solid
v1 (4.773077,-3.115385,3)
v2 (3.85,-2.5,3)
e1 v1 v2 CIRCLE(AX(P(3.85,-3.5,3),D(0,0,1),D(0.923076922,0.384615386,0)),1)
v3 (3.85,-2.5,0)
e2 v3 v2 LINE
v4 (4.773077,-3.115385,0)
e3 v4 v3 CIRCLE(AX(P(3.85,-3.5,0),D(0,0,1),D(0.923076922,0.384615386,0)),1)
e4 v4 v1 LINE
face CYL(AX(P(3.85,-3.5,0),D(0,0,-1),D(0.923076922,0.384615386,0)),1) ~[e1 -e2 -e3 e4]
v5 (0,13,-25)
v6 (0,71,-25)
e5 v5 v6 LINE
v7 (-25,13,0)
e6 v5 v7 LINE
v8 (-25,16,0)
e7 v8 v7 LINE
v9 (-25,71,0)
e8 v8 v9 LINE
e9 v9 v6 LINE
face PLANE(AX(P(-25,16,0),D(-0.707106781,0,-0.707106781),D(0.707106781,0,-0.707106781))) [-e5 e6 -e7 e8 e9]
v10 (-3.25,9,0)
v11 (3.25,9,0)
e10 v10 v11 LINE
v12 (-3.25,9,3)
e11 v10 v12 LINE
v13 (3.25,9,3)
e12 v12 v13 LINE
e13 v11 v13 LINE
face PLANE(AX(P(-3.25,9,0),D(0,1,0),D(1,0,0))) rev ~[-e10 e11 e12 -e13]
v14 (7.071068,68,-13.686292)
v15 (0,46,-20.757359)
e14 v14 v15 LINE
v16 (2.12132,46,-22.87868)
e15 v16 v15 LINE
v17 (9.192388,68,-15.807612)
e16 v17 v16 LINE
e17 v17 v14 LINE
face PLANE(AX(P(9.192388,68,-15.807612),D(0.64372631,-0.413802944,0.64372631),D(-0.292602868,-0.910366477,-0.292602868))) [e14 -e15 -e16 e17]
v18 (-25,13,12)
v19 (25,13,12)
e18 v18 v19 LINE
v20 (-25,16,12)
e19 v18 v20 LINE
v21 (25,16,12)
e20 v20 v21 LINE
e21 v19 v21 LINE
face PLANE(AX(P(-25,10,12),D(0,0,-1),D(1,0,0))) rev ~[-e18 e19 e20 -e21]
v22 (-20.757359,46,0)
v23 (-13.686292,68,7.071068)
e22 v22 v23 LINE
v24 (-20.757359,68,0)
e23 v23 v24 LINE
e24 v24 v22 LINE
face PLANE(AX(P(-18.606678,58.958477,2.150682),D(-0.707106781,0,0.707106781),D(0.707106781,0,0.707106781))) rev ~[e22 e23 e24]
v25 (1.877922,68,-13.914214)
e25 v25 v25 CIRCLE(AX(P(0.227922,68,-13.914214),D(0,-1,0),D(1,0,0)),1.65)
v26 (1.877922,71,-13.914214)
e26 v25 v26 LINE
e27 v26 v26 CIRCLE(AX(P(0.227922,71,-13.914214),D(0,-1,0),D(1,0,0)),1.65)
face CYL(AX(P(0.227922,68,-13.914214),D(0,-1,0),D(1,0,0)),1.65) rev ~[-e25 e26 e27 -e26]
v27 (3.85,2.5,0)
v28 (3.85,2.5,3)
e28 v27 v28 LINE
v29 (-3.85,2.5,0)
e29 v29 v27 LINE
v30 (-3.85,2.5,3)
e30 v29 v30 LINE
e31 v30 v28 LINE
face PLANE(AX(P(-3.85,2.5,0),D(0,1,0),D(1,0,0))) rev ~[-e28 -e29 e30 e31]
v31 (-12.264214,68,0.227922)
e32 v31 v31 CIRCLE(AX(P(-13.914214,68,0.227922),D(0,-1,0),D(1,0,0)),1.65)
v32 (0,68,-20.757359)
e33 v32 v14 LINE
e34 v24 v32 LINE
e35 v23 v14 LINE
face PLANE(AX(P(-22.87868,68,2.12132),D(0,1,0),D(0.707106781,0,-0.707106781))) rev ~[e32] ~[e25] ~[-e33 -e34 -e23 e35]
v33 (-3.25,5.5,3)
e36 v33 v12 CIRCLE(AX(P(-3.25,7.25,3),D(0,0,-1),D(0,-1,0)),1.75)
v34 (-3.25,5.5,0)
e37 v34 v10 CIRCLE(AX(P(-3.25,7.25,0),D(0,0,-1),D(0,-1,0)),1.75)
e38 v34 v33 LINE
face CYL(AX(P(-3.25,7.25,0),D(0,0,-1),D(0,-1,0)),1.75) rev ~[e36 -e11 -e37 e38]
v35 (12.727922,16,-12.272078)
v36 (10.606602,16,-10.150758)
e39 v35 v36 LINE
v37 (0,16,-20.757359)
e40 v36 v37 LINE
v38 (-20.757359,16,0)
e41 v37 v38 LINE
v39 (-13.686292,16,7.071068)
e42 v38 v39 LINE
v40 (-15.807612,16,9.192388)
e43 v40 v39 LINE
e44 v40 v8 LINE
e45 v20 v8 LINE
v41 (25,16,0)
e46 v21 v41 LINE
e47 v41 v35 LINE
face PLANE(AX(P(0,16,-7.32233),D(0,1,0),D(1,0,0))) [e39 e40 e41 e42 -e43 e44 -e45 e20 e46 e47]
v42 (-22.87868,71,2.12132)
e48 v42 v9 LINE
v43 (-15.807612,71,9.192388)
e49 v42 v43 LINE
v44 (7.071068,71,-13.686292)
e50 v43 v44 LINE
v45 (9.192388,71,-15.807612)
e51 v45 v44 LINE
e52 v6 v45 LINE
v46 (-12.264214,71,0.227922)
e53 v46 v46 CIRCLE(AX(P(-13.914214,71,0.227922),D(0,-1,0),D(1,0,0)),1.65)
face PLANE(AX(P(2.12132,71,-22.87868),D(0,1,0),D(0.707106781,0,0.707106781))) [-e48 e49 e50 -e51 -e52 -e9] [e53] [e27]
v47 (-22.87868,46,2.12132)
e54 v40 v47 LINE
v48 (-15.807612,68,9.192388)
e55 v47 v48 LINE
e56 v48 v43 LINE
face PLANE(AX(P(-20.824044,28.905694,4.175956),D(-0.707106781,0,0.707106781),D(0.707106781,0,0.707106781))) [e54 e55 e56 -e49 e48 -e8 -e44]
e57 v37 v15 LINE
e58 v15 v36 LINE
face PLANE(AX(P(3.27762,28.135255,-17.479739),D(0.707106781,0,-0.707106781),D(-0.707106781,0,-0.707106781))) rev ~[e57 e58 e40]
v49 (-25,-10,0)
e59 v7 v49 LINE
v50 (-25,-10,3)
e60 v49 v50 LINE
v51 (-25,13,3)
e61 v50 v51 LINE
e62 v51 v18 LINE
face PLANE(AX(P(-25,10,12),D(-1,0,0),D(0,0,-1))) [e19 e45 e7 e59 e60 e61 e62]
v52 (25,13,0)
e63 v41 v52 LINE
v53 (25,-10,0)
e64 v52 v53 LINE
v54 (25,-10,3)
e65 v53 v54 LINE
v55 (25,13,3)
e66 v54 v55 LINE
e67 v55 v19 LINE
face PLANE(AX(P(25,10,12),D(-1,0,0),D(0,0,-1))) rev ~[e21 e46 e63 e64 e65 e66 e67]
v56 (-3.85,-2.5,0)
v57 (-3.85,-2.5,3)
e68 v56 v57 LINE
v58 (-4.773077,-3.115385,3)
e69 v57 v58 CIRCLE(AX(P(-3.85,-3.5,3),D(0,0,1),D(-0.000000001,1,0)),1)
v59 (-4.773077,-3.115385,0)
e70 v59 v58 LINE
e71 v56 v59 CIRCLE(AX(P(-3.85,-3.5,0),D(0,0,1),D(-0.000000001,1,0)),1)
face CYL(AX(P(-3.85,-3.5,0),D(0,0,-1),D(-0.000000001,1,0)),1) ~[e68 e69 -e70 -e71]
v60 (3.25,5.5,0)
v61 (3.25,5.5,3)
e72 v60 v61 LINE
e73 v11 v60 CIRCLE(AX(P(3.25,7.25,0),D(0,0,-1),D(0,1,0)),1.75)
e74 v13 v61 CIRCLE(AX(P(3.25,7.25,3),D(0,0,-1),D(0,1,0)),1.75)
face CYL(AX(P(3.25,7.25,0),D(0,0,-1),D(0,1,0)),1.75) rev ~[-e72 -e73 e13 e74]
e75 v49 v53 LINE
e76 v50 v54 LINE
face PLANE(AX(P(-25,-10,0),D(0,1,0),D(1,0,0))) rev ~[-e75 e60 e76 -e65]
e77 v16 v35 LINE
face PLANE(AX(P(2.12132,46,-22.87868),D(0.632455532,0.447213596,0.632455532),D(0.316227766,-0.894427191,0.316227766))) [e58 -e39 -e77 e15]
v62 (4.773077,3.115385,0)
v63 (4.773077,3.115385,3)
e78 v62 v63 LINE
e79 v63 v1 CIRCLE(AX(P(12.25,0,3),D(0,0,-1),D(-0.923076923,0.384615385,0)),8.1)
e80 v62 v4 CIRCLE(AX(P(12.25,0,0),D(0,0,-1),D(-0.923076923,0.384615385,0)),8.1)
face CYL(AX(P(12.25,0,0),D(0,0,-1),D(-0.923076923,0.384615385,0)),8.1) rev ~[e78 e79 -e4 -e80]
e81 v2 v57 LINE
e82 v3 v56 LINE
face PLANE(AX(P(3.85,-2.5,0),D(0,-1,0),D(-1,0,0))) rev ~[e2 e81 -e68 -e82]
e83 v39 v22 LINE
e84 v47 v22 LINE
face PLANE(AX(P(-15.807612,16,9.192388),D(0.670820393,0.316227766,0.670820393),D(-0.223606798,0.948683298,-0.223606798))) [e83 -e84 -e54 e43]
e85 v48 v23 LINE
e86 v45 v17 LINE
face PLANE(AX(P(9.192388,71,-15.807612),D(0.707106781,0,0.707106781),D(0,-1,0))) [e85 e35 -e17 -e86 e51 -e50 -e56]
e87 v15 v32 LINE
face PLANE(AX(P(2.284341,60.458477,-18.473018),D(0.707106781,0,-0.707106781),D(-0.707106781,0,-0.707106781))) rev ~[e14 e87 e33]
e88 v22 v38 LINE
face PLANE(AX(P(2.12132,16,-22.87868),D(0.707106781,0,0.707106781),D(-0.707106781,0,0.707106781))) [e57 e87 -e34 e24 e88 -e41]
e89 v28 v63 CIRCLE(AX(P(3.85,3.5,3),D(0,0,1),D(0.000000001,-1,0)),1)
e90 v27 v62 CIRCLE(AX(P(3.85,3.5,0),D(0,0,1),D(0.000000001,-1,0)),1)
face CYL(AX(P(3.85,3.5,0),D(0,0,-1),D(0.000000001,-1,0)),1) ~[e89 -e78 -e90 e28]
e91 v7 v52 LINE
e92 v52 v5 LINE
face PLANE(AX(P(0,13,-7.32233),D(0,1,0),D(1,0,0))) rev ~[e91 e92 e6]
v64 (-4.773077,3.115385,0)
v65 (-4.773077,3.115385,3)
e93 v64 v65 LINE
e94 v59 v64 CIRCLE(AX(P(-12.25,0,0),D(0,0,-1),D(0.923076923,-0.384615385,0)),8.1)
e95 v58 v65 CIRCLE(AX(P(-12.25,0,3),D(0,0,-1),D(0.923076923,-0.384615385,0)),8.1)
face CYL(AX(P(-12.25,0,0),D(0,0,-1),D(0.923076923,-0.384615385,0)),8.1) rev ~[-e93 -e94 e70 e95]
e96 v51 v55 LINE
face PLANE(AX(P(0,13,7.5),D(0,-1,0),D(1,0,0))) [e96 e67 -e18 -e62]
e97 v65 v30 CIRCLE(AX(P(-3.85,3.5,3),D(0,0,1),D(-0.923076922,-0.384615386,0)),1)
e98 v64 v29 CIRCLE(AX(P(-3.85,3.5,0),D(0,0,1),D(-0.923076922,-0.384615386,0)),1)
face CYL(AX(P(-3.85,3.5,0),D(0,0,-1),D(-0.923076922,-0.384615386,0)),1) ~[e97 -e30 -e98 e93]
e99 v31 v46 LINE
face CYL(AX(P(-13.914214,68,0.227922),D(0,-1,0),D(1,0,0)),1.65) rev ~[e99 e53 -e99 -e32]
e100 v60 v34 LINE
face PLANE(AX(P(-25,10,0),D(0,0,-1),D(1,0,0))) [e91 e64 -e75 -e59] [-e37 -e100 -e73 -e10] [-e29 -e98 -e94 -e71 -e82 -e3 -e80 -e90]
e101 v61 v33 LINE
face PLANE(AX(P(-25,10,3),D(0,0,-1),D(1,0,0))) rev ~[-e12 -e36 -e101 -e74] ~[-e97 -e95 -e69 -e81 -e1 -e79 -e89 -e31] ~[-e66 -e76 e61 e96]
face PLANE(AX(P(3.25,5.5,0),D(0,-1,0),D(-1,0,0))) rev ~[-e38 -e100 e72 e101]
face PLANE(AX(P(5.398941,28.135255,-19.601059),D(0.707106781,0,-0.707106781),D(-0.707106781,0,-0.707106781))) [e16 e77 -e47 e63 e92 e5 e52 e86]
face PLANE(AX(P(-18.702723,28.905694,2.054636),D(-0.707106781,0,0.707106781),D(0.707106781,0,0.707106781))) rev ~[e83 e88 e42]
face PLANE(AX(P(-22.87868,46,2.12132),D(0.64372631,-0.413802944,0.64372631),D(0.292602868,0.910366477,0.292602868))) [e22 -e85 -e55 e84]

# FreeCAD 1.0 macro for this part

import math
import FreeCAD as App
import Part
import Sketcher
from FreeCAD import Vector
Q = App.Units.Quantity

doc = App.newDocument("Part")
body = doc.addObject("PartDesign::Body", "Body")

sketch1 = doc.addObject("Sketcher::SketchObject", "Sketch")
body.addObject(sketch1)
sketch1.AttachmentSupport = (doc.XY_Plane, [""])
sketch1.MapMode = "FlatFace"
sketch1.addGeometry([
    Part.LineSegment(Vector(-25, 10, 0), Vector(-25, -10, 0)),
    Part.LineSegment(Vector(-25, -10, 0), Vector(25, -10, 0)),
    Part.LineSegment(Vector(25, -10, 0), Vector(25, 10, 0)),
    Part.LineSegment(Vector(25, 10, 0), Vector(-25, 10, 0)),
    Part.ArcOfCircle(Part.Circle(Vector(-3.85, 3.5, 0), Vector(0, 0, 1), 1), math.radians(-157.380135), math.radians(-90)),
    Part.LineSegment(Vector(-3.85, 2.5, 0), Vector(3.85, 2.5, 0)),
    Part.ArcOfCircle(Part.Circle(Vector(3.85, 3.5, 0), Vector(0, 0, 1), 1), math.radians(-90), math.radians(-22.619865)),
    Part.ArcOfCircle(Part.Circle(Vector(12.25, 0, 0), Vector(0, 0, 1), 8.1), math.radians(-157.380135), math.radians(157.380135)),
    Part.ArcOfCircle(Part.Circle(Vector(3.85, -3.5, 0), Vector(0, 0, 1), 1), math.radians(22.619865), math.radians(90)),
    Part.LineSegment(Vector(3.85, -2.5, 0), Vector(-3.85, -2.5, 0)),
    Part.ArcOfCircle(Part.Circle(Vector(-3.85, -3.5, 0), Vector(0, 0, 1), 1), math.radians(90), math.radians(157.380135)),
    Part.ArcOfCircle(Part.Circle(Vector(-12.25, 0, 0), Vector(0, 0, 1), 8.1), math.radians(22.619865), math.radians(337.380135)),
    Part.ArcOfCircle(Part.Circle(Vector(3.25, 7.25, 0), Vector(0, 0, 1), 1.75), math.radians(-90), math.radians(90)),
    Part.LineSegment(Vector(3.25, 5.5, 0), Vector(-3.25, 5.5, 0)),
    Part.ArcOfCircle(Part.Circle(Vector(-3.25, 7.25, 0), Vector(0, 0, 1), 1.75), math.radians(90), math.radians(270)),
    Part.LineSegment(Vector(-3.25, 9, 0), Vector(3.25, 9, 0)),
], False)
sketch1.addConstraint([
    Sketcher.Constraint("Coincident", 0, 2, 1, 1),
    Sketcher.Constraint("Coincident", 1, 2, 2, 1),
    Sketcher.Constraint("Coincident", 2, 2, 3, 1),
    Sketcher.Constraint("Coincident", 3, 2, 0, 1),
    Sketcher.Constraint("Tangent", 4, 2, 5, 1),
    Sketcher.Constraint("Tangent", 5, 2, 6, 1),
    Sketcher.Constraint("Tangent", 6, 2, 7, 2),
    Sketcher.Constraint("Tangent", 7, 1, 8, 1),
    Sketcher.Constraint("Tangent", 8, 2, 9, 1),
    Sketcher.Constraint("Tangent", 9, 2, 10, 1),
    Sketcher.Constraint("Tangent", 10, 2, 11, 2),
    Sketcher.Constraint("Tangent", 11, 1, 4, 1),
    Sketcher.Constraint("Tangent", 12, 1, 13, 1),
    Sketcher.Constraint("Tangent", 13, 2, 14, 2),
    Sketcher.Constraint("Tangent", 14, 1, 15, 1),
    Sketcher.Constraint("Tangent", 15, 2, 12, 2),
    Sketcher.Constraint("Vertical", 0),
    Sketcher.Constraint("Horizontal", 1),
    Sketcher.Constraint("Vertical", 2),
    Sketcher.Constraint("Horizontal", 3),
    Sketcher.Constraint("Horizontal", 5),
    Sketcher.Constraint("Horizontal", 9),
    Sketcher.Constraint("Horizontal", 13),
    Sketcher.Constraint("Horizontal", 15),
    Sketcher.Constraint("Equal", 4, 6),
    Sketcher.Constraint("Equal", 6, 8),
    Sketcher.Constraint("Equal", 8, 10),
    Sketcher.Constraint("Equal", 7, 11),
    Sketcher.Constraint("Symmetric", 4, 3, 8, 3, -1, 1),
    Sketcher.Constraint("Symmetric", 0, 2, 2, 2, -1, 1),
    Sketcher.Constraint("Symmetric", 7, 3, 11, 3, -2),
    Sketcher.Constraint("Radius", 4, Q("1 mm")),
    Sketcher.Constraint("Radius", 7, Q("8.1 mm")),
    Sketcher.Constraint("DistanceX", 1, 1, 1, 2, Q("50 mm")),
    Sketcher.Constraint("DistanceY", 0, 2, 0, 1, Q("20 mm")),
    Sketcher.Constraint("Radius", 12, Q("1.75 mm")),
    Sketcher.Constraint("DistanceX", 5, 1, 5, 2, Q("7.7 mm")),
    Sketcher.Constraint("DistanceX", 13, 2, 13, 1, Q("6.5 mm")),
    Sketcher.Constraint("DistanceY", -1, 1, 14, 1, Q("9 mm")),
    Sketcher.Constraint("DistanceY", 8, 3, 6, 3, Q("7 mm")),
    Sketcher.Constraint("DistanceX", 12, 3, 7, 3, Q("9 mm")),
])
pad1 = doc.addObject("PartDesign::Pad", "Pad")
body.addObject(pad1)
pad1.Profile = sketch1
pad1.Length = 3

sketch2 = doc.addObject("Sketcher::SketchObject", "Sketch001")
body.addObject(sketch2)
sketch2.AttachmentSupport = (doc.XZ_Plane, [""])
sketch2.MapMode = "FlatFace"
sketch2.AttachmentOffset = App.Placement(Vector(0, 0, -10), App.Rotation())
sketch2.addGeometry([
    Part.LineSegment(Vector(-25, 0, 0), Vector(-25, 12, 0)),
    Part.LineSegment(Vector(-25, 12, 0), Vector(25, 12, 0)),
    Part.LineSegment(Vector(25, 12, 0), Vector(25, 0, 0)),
    Part.LineSegment(Vector(25, 0, 0), Vector(-25, 0, 0)),
], False)
sketch2.addConstraint([
    Sketcher.Constraint("Coincident", 0, 2, 1, 1),
    Sketcher.Constraint("Coincident", 1, 2, 2, 1),
    Sketcher.Constraint("Coincident", 2, 2, 3, 1),
    Sketcher.Constraint("Coincident", 3, 2, 0, 1),
    Sketcher.Constraint("Vertical", 0),
    Sketcher.Constraint("Horizontal", 1),
    Sketcher.Constraint("Vertical", 2),
    Sketcher.Constraint("Horizontal", 3),
    Sketcher.Constraint("Symmetric", 2, 2, 3, 2, -1, 1),
    Sketcher.Constraint("DistanceX", 1, 1, 1, 2, Q("50 mm")),
    Sketcher.Constraint("DistanceY", 0, 1, 0, 2, Q("12 mm")),
])
pad2 = doc.addObject("PartDesign::Pad", "Pad001")
body.addObject(pad2)
pad2.Profile = sketch2
pad2.Length = 6
pad2.Reversed = True

sketch3 = doc.addObject("Sketcher::SketchObject", "Sketch002")
body.addObject(sketch3)
sketch3.AttachmentSupport = (doc.XZ_Plane, [""])
sketch3.MapMode = "FlatFace"
sketch3.AttachmentOffset = App.Placement(Vector(0, 0, -10), App.Rotation())
sketch3.addGeometry([
    Part.LineSegment(Vector(-25, 12, 0), Vector(-25, 3, 0)),
    Part.LineSegment(Vector(-25, 3, 0), Vector(25, 3, 0)),
    Part.LineSegment(Vector(25, 3, 0), Vector(25, 12, 0)),
    Part.LineSegment(Vector(25, 12, 0), Vector(-25, 12, 0)),
], False)
sketch3.addConstraint([
    Sketcher.Constraint("Coincident", 0, 2, 1, 1),
    Sketcher.Constraint("Coincident", 1, 2, 2, 1),
    Sketcher.Constraint("Coincident", 2, 2, 3, 1),
    Sketcher.Constraint("Coincident", 3, 2, 0, 1),
    Sketcher.Constraint("Vertical", 0),
    Sketcher.Constraint("Horizontal", 1),
    Sketcher.Constraint("Vertical", 2),
    Sketcher.Constraint("Horizontal", 3),
    Sketcher.Constraint("DistanceX", 1, 1, 1, 2, Q("50 mm")),
    Sketcher.Constraint("DistanceY", 0, 2, 0, 1, Q("9 mm")),
    Sketcher.Constraint("DistanceX", 0, 2, -1, 1, Q("25 mm")),
    Sketcher.Constraint("DistanceY", -1, 1, 0, 2, Q("3 mm")),
])
pocket1 = doc.addObject("PartDesign::Pocket", "Pocket")
body.addObject(pocket1)
pocket1.Profile = sketch3
pocket1.Length = 3

sketch4 = doc.addObject("Sketcher::SketchObject", "Sketch003")
body.addObject(sketch4)
sketch4.AttachmentSupport = (doc.XZ_Plane, [""])
sketch4.MapMode = "FlatFace"
sketch4.AttachmentOffset = App.Placement(Vector(0, 0, -16), App.Rotation())
sketch4.addGeometry([
    Part.LineSegment(Vector(25, 0, 0), Vector(0, -25, 0)),
    Part.LineSegment(Vector(0, -25, 0), Vector(-25, 0, 0)),
    Part.LineSegment(Vector(-25, 0, 0), Vector(25, 0, 0)),
], False)
sketch4.addConstraint([
    Sketcher.Constraint("Coincident", 0, 2, 1, 1),
    Sketcher.Constraint("Coincident", 1, 2, 2, 1),
    Sketcher.Constraint("Coincident", 2, 2, 0, 1),
    Sketcher.Constraint("Horizontal", 2),
    Sketcher.Constraint("Symmetric", 1, 2, 2, 2, -1, 1),
    Sketcher.Constraint("PointOnObject", 0, 2, -2),
    Sketcher.Constraint("Perpendicular", 0, 1),
    Sketcher.Constraint("DistanceX", 2, 1, 2, 2, Q("50 mm")),
])
pad3 = doc.addObject("PartDesign::Pad", "Pad002")
body.addObject(pad3)
pad3.Profile = sketch4
pad3.Length = 3

sketch5 = doc.addObject("Sketcher::SketchObject", "Sketch004")
body.addObject(sketch5)
sketch5.AttachmentSupport = (doc.XZ_Plane, [""])
sketch5.MapMode = "FlatFace"
sketch5.AttachmentOffset = App.Placement(Vector(0, 0, -16), App.Rotation())
sketch5.addGeometry([
    Part.LineSegment(Vector(2.12132, -22.87868, 0), Vector(0, -25, 0)),
    Part.LineSegment(Vector(0, -25, 0), Vector(-25, 0, 0)),
    Part.LineSegment(Vector(-25, 0, 0), Vector(-22.87868, 2.12132, 0)),
    Part.LineSegment(Vector(-22.87868, 2.12132, 0), Vector(2.12132, -22.87868, 0)),
], False)
sketch5.addConstraint([
    Sketcher.Constraint("Coincident", 0, 2, 1, 1),
    Sketcher.Constraint("Coincident", 1, 2, 2, 1),
    Sketcher.Constraint("Coincident", 2, 2, 3, 1),
    Sketcher.Constraint("Coincident", 3, 2, 0, 1),
    Sketcher.Constraint("PointOnObject", 0, 2, -2),
    Sketcher.Constraint("PointOnObject", 1, 2, -1),
    Sketcher.Constraint("Perpendicular", 0, 1),
    Sketcher.Constraint("Perpendicular", 1, 2),
    Sketcher.Constraint("Perpendicular", 2, 3),
    Sketcher.Constraint("Angle", 0, Q("-135 deg")),
    Sketcher.Constraint("Distance", 0, Q("3 mm")),
    Sketcher.Constraint("DistanceY", 0, 2, -1, 1, Q("25 mm")),
])
pad4 = doc.addObject("PartDesign::Pad", "Pad003")
body.addObject(pad4)
pad4.Profile = sketch5
pad4.Length = 55
pad4.Reversed = True

sketch6 = doc.addObject("Sketcher::SketchObject", "Sketch005")
body.addObject(sketch6)
sketch6.Placement = App.Placement(Vector(-10.37868, 0, -10.37868), App.Rotation(Vector(0.707106781, 0, -0.707106781), Vector(0, 0.999999999, 0), Vector(0.707106781, 0, 0.707106781), "ZXY"))
sketch6.addGeometry([
    Part.LineSegment(Vector(-17.67767, 71, 0), Vector(-17.67767, 68, 0)),
    Part.LineSegment(Vector(-17.67767, 68, 0), Vector(14.67767, 68, 0)),
    Part.LineSegment(Vector(14.67767, 68, 0), Vector(14.67767, 71, 0)),
    Part.LineSegment(Vector(14.67767, 71, 0), Vector(-17.67767, 71, 0)),
], False)
sketch6.addConstraint([
    Sketcher.Constraint("Coincident", 0, 2, 1, 1),
    Sketcher.Constraint("Coincident", 1, 2, 2, 1),
    Sketcher.Constraint("Coincident", 2, 2, 3, 1),
    Sketcher.Constraint("Coincident", 3, 2, 0, 1),
    Sketcher.Constraint("Vertical", 0),
    Sketcher.Constraint("Horizontal", 1),
    Sketcher.Constraint("Vertical", 2),
    Sketcher.Constraint("Horizontal", 3),
    Sketcher.Constraint("DistanceY", 0, 2, 0, 1, Q("3 mm")),
    Sketcher.Constraint("DistanceY", -1, 1, 0, 2, Q("68 mm")),
    Sketcher.Constraint("DistanceX", 1, 1, 1, 2, Q("32.355339 mm")),
    Sketcher.Constraint("DistanceX", 0, 2, -1, 1, Q("17.67767 mm")),
])
pad5 = doc.addObject("PartDesign::Pad", "Pad004")
body.addObject(pad5)
pad5.Profile = sketch6
pad5.Length = 10

sketch7 = doc.addObject("Sketcher::SketchObject", "Sketch006")
body.addObject(sketch7)
sketch7.Placement = App.Placement(Vector(12.5, 0, -12.5), App.Rotation(Vector(-0.707106781, 0, -0.707106781), Vector(0, 0.999999999, 0), Vector(0.707106781, 0, -0.707106781), "ZXY"))
sketch7.addGeometry([
    Part.LineSegment(Vector(14.67767, 16, 0), Vector(14.67767, 46, 0)),
    Part.LineSegment(Vector(14.67767, 46, 0), Vector(-0.32233, 16, 0)),
    Part.LineSegment(Vector(-0.32233, 16, 0), Vector(14.67767, 16, 0)),
    Part.LineSegment(Vector(14.67767, 46, 0), Vector(14.67767, 71, 0)),
    Part.LineSegment(Vector(14.67767, 71, 0), Vector(4.67767, 71, 0)),
    Part.LineSegment(Vector(4.67767, 71, 0), Vector(4.67767, 68, 0)),
    Part.LineSegment(Vector(4.67767, 68, 0), Vector(14.67767, 46, 0)),
], False)
sketch7.addConstraint([
    Sketcher.Constraint("Coincident", 0, 2, 1, 1),
    Sketcher.Constraint("Coincident", 1, 2, 2, 1),
    Sketcher.Constraint("Coincident", 2, 2, 0, 1),
    Sketcher.Constraint("Coincident", 3, 2, 4, 1),
    Sketcher.Constraint("Coincident", 4, 2, 5, 1),
    Sketcher.Constraint("Coincident", 5, 2, 6, 1),
    Sketcher.Constraint("Coincident", 6, 2, 3, 1),
    Sketcher.Constraint("Vertical", 0),
    Sketcher.Constraint("Horizontal", 2),
    Sketcher.Constraint("Vertical", 3),
    Sketcher.Constraint("Horizontal", 4),
    Sketcher.Constraint("Vertical", 5),
    Sketcher.Constraint("Coincident", 6, 2, 0, 2),
    Sketcher.Constraint("DistanceX", 2, 1, 2, 2, Q("15 mm")),
    Sketcher.Constraint("DistanceX", 4, 2, 4, 1, Q("10 mm")),
    Sketcher.Constraint("DistanceY", 0, 1, 0, 2, Q("30 mm")),
    Sketcher.Constraint("DistanceY", 3, 1, 3, 2, Q("25 mm")),
    Sketcher.Constraint("DistanceY", 5, 2, 5, 1, Q("3 mm")),
    Sketcher.Constraint("DistanceY", -1, 1, 0, 2, Q("46 mm")),
    Sketcher.Constraint("DistanceX", -1, 1, 0, 2, Q("14.67767 mm")),
])
pad6 = doc.addObject("PartDesign::Pad", "Pad005")
body.addObject(pad6)
pad6.Profile = sketch7
pad6.Length = 3
pad6.Reversed = True

sketch8 = doc.addObject("Sketcher::SketchObject", "Sketch007")
body.addObject(sketch8)
sketch8.Placement = App.Placement(Vector(-12.5, 0, 12.5), App.Rotation(Vector(0.707106781, 0, 0.707106781), Vector(0, 0.999999999, 0), Vector(-0.707106781, 0, 0.707106781), "ZXY"))
sketch8.addGeometry([
    Part.LineSegment(Vector(-14.67767, 46, 0), Vector(-14.67767, 16, 0)),
    Part.LineSegment(Vector(-14.67767, 16, 0), Vector(-4.67767, 16, 0)),
    Part.LineSegment(Vector(-4.67767, 16, 0), Vector(-14.67767, 46, 0)),
    Part.LineSegment(Vector(-14.67767, 68, 0), Vector(-14.67767, 46, 0)),
    Part.LineSegment(Vector(-14.67767, 46, 0), Vector(-4.67767, 68, 0)),
    Part.LineSegment(Vector(-4.67767, 68, 0), Vector(-14.67767, 68, 0)),
], False)
sketch8.addConstraint([
    Sketcher.Constraint("Coincident", 0, 2, 1, 1),
    Sketcher.Constraint("Coincident", 1, 2, 2, 1),
    Sketcher.Constraint("Coincident", 2, 2, 0, 1),
    Sketcher.Constraint("Coincident", 3, 2, 4, 1),
    Sketcher.Constraint("Coincident", 4, 2, 5, 1),
    Sketcher.Constraint("Coincident", 5, 2, 3, 1),
    Sketcher.Constraint("Vertical", 0),
    Sketcher.Constraint("Horizontal", 1),
    Sketcher.Constraint("Vertical", 3),
    Sketcher.Constraint("Horizontal", 5),
    Sketcher.Constraint("Coincident", 3, 2, 2, 2),
    Sketcher.Constraint("Vertical", 1, 2, 4, 2),
    Sketcher.Constraint("DistanceX", 1, 1, 1, 2, Q("10 mm")),
    Sketcher.Constraint("DistanceY", 0, 2, 0, 1, Q("30 mm")),
    Sketcher.Constraint("DistanceY", 3, 2, 3, 1, Q("22 mm")),
    Sketcher.Constraint("DistanceY", -1, 1, 0, 2, Q("16 mm")),
    Sketcher.Constraint("DistanceX", 0, 2, -1, 1, Q("14.67767 mm")),
])
pad7 = doc.addObject("PartDesign::Pad", "Pad006")
body.addObject(pad7)
pad7.Profile = sketch8
pad7.Length = 3
pad7.Reversed = True

sketch9 = doc.addObject("Sketcher::SketchObject", "Sketch008")
body.addObject(sketch9)
sketch9.AttachmentSupport = (doc.XZ_Plane, [""])
sketch9.MapMode = "FlatFace"
sketch9.AttachmentOffset = App.Placement(Vector(0, 0, -68), App.Rotation())
sketch9.addGeometry([
    Part.Circle(Vector(0.227922, -13.914214, 0), Vector(0, 0, 1), 1.65),
    Part.Circle(Vector(-13.914214, 0.227922, 0), Vector(0, 0, 1), 1.65),
], False)
sketch9.addConstraint([
    Sketcher.Constraint("Equal", 0, 1),
    Sketcher.Constraint("Diameter", 0, Q("3.3 mm")),
    Sketcher.Constraint("DistanceX", -1, 1, 0, 3, Q("0.227922 mm")),
    Sketcher.Constraint("DistanceY", 0, 3, -1, 1, Q("13.914214 mm")),
    Sketcher.Constraint("DistanceX", 1, 3, -1, 1, Q("13.914214 mm")),
    Sketcher.Constraint("DistanceY", -1, 1, 1, 3, Q("0.227922 mm")),
])
pocket2 = doc.addObject("PartDesign::Pocket", "Pocket001")
body.addObject(pocket2)
pocket2.Profile = sketch9
pocket2.Length = 3

doc.recompute()
